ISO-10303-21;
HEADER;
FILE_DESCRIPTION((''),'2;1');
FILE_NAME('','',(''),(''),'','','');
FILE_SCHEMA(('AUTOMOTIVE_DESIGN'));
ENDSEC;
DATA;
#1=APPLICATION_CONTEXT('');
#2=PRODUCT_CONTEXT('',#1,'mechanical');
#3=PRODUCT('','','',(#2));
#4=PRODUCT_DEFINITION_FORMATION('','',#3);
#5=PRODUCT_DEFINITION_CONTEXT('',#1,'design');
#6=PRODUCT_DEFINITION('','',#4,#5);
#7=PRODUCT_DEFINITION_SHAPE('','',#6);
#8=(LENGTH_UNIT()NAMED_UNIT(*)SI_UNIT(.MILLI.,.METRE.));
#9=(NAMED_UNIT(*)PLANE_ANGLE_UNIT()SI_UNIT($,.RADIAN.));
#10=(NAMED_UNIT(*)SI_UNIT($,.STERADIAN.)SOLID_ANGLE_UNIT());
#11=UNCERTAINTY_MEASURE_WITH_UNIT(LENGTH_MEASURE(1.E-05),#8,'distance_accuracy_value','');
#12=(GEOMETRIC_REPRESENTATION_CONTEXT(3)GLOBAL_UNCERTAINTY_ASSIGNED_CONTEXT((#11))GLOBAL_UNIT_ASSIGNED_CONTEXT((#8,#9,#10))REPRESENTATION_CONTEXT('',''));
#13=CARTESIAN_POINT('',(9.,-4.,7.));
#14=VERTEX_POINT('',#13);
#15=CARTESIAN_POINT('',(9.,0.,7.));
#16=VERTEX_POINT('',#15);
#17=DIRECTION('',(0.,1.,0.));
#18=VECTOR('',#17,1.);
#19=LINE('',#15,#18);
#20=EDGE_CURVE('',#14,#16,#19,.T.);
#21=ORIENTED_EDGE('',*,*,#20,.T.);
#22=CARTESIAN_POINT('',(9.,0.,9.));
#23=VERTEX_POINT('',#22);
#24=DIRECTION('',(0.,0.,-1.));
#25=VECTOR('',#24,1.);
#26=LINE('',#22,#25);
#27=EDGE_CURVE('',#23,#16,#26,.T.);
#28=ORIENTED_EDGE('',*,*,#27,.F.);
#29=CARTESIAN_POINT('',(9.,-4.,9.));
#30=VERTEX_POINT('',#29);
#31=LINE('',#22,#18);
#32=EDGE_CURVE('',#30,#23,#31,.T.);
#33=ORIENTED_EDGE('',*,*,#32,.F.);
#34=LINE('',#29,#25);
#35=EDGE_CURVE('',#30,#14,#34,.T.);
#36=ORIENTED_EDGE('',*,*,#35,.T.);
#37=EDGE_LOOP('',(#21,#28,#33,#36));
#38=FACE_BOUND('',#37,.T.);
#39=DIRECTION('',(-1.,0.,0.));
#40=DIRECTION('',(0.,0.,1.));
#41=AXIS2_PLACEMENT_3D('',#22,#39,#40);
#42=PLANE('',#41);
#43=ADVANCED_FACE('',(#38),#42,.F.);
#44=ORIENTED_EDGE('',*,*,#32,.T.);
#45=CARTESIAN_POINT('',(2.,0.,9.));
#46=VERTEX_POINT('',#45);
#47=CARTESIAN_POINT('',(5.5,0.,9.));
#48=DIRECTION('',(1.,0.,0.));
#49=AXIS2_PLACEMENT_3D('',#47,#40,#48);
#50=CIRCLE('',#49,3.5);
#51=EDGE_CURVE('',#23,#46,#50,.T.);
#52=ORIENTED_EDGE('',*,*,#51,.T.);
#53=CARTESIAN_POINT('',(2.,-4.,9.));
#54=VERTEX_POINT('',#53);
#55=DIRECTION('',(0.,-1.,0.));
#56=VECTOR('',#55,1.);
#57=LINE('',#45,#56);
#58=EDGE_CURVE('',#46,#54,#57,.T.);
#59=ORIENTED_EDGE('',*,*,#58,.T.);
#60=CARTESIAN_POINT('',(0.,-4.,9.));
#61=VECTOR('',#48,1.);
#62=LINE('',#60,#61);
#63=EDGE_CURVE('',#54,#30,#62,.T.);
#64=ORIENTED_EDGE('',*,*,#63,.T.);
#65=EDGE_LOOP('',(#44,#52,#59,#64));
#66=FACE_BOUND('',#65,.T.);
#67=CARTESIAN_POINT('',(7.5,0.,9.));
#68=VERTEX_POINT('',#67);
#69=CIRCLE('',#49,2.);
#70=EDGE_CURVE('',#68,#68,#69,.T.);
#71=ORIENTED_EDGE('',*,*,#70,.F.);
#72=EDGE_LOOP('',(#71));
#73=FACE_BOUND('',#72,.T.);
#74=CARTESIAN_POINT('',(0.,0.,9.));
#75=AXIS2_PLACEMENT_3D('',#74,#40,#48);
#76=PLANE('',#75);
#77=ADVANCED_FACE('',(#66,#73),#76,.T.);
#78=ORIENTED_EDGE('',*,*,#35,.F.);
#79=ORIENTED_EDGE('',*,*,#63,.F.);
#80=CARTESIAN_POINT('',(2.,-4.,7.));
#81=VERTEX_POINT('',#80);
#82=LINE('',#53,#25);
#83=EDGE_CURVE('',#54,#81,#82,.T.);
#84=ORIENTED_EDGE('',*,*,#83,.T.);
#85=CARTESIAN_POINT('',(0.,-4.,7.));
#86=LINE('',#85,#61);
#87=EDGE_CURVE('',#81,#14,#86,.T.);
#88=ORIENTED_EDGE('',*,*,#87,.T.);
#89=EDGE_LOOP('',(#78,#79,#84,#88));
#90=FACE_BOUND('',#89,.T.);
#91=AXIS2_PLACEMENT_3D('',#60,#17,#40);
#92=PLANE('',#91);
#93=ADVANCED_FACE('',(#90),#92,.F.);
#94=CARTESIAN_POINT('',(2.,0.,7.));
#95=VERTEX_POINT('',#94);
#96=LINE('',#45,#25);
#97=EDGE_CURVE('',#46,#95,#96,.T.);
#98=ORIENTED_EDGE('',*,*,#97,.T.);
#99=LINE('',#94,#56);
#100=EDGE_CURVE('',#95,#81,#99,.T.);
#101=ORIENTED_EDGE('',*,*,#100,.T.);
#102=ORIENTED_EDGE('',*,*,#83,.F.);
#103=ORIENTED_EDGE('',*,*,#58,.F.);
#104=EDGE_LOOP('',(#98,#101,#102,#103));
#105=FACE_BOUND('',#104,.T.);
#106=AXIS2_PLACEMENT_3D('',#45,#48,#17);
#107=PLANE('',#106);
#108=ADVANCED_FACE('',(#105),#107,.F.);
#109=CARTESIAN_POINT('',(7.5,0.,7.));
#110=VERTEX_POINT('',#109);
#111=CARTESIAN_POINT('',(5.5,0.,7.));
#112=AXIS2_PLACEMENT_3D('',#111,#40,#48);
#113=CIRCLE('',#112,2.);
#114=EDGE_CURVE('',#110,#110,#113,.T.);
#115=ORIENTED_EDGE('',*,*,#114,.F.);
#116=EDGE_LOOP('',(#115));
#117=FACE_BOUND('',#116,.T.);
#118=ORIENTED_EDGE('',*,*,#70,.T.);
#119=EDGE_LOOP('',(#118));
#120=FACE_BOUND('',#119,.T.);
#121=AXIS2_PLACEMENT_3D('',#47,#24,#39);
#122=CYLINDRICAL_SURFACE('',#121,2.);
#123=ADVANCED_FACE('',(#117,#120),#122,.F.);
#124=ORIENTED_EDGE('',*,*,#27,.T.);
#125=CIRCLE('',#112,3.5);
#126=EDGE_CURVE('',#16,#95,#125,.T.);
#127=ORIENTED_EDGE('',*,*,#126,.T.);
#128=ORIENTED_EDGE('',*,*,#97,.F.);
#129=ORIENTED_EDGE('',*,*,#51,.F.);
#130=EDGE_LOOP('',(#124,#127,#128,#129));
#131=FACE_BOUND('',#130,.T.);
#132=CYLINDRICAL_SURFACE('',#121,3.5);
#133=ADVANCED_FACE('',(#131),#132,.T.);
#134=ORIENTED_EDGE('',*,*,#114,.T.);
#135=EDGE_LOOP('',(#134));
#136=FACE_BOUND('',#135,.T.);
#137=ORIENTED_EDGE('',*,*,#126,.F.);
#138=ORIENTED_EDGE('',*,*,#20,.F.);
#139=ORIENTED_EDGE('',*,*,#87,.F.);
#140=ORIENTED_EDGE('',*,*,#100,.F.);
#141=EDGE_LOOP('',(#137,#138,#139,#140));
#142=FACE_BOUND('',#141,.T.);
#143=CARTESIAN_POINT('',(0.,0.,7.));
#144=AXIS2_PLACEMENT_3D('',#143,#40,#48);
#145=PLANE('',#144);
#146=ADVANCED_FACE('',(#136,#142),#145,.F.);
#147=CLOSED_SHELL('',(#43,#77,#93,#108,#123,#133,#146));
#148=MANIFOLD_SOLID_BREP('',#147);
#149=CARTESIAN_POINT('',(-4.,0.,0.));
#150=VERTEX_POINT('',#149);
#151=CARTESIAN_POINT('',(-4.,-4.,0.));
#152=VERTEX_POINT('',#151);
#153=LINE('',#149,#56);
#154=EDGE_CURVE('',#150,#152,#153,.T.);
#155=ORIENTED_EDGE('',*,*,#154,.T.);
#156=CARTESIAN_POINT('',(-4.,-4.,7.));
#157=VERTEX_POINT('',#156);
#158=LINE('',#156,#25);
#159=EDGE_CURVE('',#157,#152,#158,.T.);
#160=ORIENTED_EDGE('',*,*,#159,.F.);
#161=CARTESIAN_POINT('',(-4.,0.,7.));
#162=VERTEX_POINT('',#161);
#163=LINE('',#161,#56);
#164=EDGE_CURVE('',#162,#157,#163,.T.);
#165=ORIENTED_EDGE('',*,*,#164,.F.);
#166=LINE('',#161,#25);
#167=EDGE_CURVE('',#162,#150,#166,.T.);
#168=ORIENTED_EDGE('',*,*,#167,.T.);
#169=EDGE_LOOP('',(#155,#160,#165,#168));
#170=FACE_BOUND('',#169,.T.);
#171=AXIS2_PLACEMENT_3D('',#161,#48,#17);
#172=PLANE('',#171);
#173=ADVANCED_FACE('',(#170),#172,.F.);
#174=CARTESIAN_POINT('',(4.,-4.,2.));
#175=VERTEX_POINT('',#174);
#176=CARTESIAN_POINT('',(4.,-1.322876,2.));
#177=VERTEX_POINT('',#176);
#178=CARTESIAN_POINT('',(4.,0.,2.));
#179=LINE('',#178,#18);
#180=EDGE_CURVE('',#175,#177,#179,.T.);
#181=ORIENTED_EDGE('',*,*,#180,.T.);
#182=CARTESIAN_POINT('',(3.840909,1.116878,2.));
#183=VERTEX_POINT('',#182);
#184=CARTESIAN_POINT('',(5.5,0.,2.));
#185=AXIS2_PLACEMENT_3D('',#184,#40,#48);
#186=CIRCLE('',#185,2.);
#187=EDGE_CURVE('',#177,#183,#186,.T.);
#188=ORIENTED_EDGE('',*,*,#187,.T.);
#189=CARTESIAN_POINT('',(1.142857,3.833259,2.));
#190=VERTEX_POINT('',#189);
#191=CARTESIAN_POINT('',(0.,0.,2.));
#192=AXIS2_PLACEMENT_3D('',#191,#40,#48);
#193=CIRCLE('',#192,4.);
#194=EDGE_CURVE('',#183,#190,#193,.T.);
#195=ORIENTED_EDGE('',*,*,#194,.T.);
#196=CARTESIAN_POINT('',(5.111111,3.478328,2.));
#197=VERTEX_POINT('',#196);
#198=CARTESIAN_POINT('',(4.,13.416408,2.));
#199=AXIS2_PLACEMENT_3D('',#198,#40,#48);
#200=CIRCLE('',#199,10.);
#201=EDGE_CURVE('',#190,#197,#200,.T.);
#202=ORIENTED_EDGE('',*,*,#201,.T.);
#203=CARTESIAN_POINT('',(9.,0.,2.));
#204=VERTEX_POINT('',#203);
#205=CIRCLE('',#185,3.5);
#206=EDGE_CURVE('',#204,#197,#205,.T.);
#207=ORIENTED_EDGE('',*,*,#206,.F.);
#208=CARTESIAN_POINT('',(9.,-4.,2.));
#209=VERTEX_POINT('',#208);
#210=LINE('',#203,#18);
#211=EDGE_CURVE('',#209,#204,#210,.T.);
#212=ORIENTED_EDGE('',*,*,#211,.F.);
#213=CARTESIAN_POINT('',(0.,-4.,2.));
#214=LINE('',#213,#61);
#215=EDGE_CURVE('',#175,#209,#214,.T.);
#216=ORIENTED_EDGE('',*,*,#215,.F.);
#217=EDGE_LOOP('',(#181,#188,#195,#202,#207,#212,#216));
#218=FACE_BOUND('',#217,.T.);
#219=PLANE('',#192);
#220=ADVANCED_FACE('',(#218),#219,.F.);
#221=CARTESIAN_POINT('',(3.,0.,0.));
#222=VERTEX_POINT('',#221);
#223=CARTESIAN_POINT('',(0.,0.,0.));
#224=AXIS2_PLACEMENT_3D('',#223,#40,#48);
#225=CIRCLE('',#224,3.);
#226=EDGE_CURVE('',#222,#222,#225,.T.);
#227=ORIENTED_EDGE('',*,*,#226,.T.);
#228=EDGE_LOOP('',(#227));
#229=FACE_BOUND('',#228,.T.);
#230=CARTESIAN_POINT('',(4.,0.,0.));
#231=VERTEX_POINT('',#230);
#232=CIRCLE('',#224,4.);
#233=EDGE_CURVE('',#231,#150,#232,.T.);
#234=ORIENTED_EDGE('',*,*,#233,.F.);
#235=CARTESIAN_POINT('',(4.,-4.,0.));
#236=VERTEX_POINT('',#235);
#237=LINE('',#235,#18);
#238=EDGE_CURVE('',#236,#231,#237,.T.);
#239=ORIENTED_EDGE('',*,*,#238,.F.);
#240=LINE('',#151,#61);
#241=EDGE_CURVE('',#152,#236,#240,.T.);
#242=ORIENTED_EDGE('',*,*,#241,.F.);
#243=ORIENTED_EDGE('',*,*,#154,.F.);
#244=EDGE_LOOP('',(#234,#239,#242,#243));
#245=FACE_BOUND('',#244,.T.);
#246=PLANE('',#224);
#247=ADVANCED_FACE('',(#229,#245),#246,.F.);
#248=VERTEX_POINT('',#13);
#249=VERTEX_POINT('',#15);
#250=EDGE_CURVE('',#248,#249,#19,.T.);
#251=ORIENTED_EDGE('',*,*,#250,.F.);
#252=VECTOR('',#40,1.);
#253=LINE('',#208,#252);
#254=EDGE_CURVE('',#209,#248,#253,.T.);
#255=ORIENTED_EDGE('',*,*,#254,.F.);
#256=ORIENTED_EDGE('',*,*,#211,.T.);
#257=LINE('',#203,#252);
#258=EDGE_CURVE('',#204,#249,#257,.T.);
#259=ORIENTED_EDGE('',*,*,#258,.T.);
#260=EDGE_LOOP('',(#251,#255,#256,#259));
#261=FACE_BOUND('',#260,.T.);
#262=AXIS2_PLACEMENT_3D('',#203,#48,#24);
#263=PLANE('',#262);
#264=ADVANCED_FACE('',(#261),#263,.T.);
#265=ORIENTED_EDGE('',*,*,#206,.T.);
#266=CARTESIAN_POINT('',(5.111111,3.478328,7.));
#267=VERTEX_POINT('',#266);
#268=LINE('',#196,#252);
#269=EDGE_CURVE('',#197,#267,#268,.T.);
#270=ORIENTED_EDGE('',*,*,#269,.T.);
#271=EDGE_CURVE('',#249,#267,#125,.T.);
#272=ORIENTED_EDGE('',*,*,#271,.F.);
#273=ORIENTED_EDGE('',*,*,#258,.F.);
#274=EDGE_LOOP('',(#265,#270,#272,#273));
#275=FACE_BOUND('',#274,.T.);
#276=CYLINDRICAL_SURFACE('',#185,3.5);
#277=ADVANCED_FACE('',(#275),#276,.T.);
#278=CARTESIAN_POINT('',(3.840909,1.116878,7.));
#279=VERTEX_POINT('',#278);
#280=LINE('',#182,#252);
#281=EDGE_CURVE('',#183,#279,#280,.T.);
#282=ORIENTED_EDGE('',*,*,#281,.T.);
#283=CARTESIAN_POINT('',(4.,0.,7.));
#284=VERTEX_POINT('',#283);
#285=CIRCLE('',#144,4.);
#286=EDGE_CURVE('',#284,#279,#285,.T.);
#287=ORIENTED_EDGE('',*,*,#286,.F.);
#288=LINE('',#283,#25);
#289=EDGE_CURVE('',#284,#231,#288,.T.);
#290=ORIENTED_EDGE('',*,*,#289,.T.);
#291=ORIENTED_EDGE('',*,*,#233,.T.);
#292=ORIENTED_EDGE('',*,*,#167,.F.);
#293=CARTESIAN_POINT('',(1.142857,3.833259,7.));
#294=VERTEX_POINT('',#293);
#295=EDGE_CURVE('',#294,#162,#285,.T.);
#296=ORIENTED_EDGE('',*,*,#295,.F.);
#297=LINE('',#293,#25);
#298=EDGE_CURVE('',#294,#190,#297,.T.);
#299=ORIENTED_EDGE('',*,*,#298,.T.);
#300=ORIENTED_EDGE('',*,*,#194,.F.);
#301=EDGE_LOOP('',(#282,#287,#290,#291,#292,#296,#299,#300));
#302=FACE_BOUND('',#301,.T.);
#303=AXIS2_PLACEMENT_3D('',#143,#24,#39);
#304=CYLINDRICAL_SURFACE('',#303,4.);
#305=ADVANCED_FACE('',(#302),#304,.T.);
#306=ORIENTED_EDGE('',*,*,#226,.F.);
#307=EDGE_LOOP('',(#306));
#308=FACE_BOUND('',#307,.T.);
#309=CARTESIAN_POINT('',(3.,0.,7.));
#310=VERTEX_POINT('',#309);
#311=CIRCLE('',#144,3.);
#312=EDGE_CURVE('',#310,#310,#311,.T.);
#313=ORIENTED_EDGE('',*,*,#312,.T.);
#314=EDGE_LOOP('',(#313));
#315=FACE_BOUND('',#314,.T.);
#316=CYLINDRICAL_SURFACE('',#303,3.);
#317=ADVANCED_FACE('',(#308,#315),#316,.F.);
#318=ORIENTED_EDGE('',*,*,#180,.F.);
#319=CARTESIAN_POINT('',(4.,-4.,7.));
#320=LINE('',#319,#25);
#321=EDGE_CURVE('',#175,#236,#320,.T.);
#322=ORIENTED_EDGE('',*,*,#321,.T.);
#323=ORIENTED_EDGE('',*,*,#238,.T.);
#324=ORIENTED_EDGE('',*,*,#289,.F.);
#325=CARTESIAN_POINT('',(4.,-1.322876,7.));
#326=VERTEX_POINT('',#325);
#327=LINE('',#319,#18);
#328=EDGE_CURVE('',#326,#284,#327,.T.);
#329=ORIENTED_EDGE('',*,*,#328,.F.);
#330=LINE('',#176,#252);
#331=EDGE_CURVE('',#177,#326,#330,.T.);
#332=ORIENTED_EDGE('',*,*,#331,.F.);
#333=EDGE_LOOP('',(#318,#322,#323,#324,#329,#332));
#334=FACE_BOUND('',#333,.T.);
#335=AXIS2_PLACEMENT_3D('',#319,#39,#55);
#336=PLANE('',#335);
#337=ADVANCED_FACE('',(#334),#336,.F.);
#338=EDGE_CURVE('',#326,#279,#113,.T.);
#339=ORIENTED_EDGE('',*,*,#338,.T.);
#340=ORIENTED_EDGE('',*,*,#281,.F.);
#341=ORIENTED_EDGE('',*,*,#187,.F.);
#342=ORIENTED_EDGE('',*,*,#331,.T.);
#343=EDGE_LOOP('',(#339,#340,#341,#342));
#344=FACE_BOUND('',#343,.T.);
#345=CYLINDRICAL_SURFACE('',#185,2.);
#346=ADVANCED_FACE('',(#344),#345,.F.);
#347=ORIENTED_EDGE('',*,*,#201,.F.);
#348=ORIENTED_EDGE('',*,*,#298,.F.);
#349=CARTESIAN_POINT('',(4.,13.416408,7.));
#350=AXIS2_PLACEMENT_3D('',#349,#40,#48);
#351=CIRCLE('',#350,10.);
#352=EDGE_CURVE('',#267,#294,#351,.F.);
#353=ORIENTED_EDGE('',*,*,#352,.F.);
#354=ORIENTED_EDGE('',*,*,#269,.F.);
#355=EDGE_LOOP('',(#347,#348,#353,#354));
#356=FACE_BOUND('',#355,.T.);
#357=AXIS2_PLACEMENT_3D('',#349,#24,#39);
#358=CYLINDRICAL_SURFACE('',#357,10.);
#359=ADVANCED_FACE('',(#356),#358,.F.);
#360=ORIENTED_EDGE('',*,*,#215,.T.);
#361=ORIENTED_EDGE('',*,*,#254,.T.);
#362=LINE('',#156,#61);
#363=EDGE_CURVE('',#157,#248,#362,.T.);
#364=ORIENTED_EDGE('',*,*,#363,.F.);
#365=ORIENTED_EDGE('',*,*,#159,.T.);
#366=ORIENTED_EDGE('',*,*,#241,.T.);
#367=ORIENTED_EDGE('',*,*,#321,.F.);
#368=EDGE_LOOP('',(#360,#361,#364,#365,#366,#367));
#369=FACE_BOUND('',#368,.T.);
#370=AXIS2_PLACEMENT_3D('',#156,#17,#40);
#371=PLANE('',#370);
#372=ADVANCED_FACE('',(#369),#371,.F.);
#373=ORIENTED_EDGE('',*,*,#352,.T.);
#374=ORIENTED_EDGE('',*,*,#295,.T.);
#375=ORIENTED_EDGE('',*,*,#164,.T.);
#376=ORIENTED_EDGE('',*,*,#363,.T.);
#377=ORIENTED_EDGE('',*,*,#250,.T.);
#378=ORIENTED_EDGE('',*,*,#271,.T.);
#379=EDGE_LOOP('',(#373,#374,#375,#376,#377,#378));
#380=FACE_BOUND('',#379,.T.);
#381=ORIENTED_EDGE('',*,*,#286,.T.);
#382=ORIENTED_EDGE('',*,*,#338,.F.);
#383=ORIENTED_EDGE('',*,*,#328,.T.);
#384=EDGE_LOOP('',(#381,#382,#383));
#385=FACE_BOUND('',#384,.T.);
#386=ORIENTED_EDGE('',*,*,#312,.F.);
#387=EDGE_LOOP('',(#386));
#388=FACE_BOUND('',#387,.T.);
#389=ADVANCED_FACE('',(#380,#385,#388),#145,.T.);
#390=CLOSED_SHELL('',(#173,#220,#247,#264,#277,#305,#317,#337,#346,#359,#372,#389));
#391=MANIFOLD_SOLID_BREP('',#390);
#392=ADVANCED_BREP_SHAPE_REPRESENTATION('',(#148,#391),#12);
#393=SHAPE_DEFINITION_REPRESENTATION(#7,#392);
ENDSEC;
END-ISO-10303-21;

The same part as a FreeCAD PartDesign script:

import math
import FreeCAD as App
import Part
import Sketcher
from FreeCAD import Vector


def edges_at(feature, points):
    """Names of the edges that pass closest to the given points."""
    edges = feature.Shape.Edges
    near = lambda p: min(range(len(edges)), key=lambda i: edges[i].distToShape(Part.Vertex(*p))[0])
    return sorted({f"Edge{near(p) + 1}" for p in points})

doc = App.newDocument("Part")
body = doc.addObject("PartDesign::Body", "Body")

# Sketch on XY plane
sketch1 = body.newObject("Sketcher::SketchObject", "Sketch")
sketch1.AttachmentSupport = (doc.getObject("XY_Plane"), [""])
sketch1.MapMode = "FlatFace"
sketch1.addGeometry(Part.LineSegment(Vector(-4, 0, 0), Vector(-4, -4, 0)), False)
sketch1.addGeometry(Part.LineSegment(Vector(-4, -4, 0), Vector(4, -4, 0)), False)
sketch1.addGeometry(Part.LineSegment(Vector(4, -4, 0), Vector(4, 0, 0)), False)
sketch1.addGeometry(Part.ArcOfCircle(Part.Circle(Vector(0, 0, 0), Vector(0, 0, 1), 4), math.radians(0), math.radians(180)), False)
sketch1.addGeometry(Part.Circle(Vector(0, 0, 0), Vector(0, 0, 1), 3), False)
sketch1.addConstraint(Sketcher.Constraint("Coincident", 0, 2, 1, 1))
sketch1.addConstraint(Sketcher.Constraint("Coincident", 1, 2, 2, 1))
sketch1.addConstraint(Sketcher.Constraint("Tangent", 2, 2, 3, 1))
sketch1.addConstraint(Sketcher.Constraint("Tangent", 3, 2, 0, 1))
sketch1.addConstraint(Sketcher.Constraint("Vertical", 0))
sketch1.addConstraint(Sketcher.Constraint("Horizontal", 1))
sketch1.addConstraint(Sketcher.Constraint("Vertical", 2))
sketch1.addConstraint(Sketcher.Constraint("Coincident", 3, 3, -1, 1))
sketch1.addConstraint(Sketcher.Constraint("Coincident", 4, 3, -1, 1))
sketch1.addConstraint(Sketcher.Constraint("Diameter", 4, 6.0))
sketch1.addConstraint(Sketcher.Constraint("Radius", 3, 4.0))
sketch1.addConstraint(Sketcher.Constraint("DistanceY", 0, 2, 0, 1, 4.0))
pad1 = body.newObject("PartDesign::Pad", "Pad")
pad1.Profile = sketch1
pad1.Length = 7

# Sketch on XY plane
sketch2 = body.newObject("Sketcher::SketchObject", "Sketch001")
sketch2.AttachmentSupport = (doc.getObject("XY_Plane"), [""])
sketch2.MapMode = "FlatFace"
sketch2.AttachmentOffset = App.Placement(Vector(0, 0, 2), App.Rotation())
sketch2.addGeometry(Part.ArcOfCircle(Part.Circle(Vector(5.5, 0, 0), Vector(0, 0, 1), 3.5), math.radians(0), math.radians(133.496613)), False)
sketch2.addGeometry(Part.ArcOfCircle(Part.Circle(Vector(0, 0, 0), Vector(0, 0, 1), 4), math.radians(16.213633), math.radians(39.400569)), False)
sketch2.addGeometry(Part.ArcOfCircle(Part.Circle(Vector(5.5, 0, 0), Vector(0, 0, 1), 2), math.radians(0), math.radians(146.052073)), False)
sketch2.addGeometry(Part.ArcOfCircle(Part.Circle(Vector(5.5, 0, 0), Vector(0, 0, 1), 2), math.radians(-138.590378), math.radians(0)), False)
sketch2.addGeometry(Part.LineSegment(Vector(4, -1.322876, 0), Vector(4, -4, 0)), False)
sketch2.addGeometry(Part.LineSegment(Vector(4, -4, 0), Vector(9, -4, 0)), False)
sketch2.addGeometry(Part.LineSegment(Vector(9, -4, 0), Vector(9, 0, 0)), False)
sketch2.addConstraint(Sketcher.Constraint("Coincident", 0, 2, 1, 2))
sketch2.addConstraint(Sketcher.Constraint("Coincident", 1, 1, 2, 2))
sketch2.addConstraint(Sketcher.Constraint("Tangent", 2, 1, 3, 2))
sketch2.addConstraint(Sketcher.Constraint("Coincident", 3, 1, 4, 1))
sketch2.addConstraint(Sketcher.Constraint("Coincident", 4, 2, 5, 1))
sketch2.addConstraint(Sketcher.Constraint("Coincident", 5, 2, 6, 1))
sketch2.addConstraint(Sketcher.Constraint("Tangent", 6, 2, 0, 1))
sketch2.addConstraint(Sketcher.Constraint("Vertical", 4))
sketch2.addConstraint(Sketcher.Constraint("Horizontal", 5))
sketch2.addConstraint(Sketcher.Constraint("Vertical", 6))
sketch2.addConstraint(Sketcher.Constraint("Coincident", 1, 3, -1, 1))
sketch2.addConstraint(Sketcher.Constraint("Coincident", 2, 3, 0, 3))
sketch2.addConstraint(Sketcher.Constraint("Equal", 2, 3))
sketch2.addConstraint(Sketcher.Constraint("PointOnObject", 0, 3, -1))
sketch2.addConstraint(Sketcher.Constraint("PointOnObject", 2, 1, -1))
sketch2.addConstraint(Sketcher.Constraint("Radius", 1, 4.0))
sketch2.addConstraint(Sketcher.Constraint("Radius", 2, 2.0))
sketch2.addConstraint(Sketcher.Constraint("Radius", 0, 3.5))
sketch2.addConstraint(Sketcher.Constraint("DistanceX", 5, 1, 5, 2, 5.0))
sketch2.addConstraint(Sketcher.Constraint("DistanceY", 6, 1, 6, 2, 4.0))
sketch2.addConstraint(Sketcher.Constraint("DistanceX", -1, 1, 3, 1, 4.0))
pad2 = body.newObject("PartDesign::Pad", "Pad001")
pad2.Profile = sketch2
pad2.Length = 5
doc.recompute()

fillet = body.newObject("PartDesign::Fillet", "Fillet")
fillet.Base = (pad2, edges_at(pad2, [(3.091, 2.539, 4.5)]))
fillet.Radius = 10
body2 = doc.addObject("PartDesign::Body", "Body001")

# Sketch on XY plane
sketch3 = body2.newObject("Sketcher::SketchObject", "Sketch002")
sketch3.AttachmentSupport = (doc.getObject("XY_Plane001"), [""])
sketch3.MapMode = "FlatFace"
sketch3.AttachmentOffset = App.Placement(Vector(0, 0, 7), App.Rotation())
sketch3.addGeometry(Part.LineSegment(Vector(2, 0, 0), Vector(2, -4, 0)), False)
sketch3.addGeometry(Part.LineSegment(Vector(2, -4, 0), Vector(9, -4, 0)), False)
sketch3.addGeometry(Part.LineSegment(Vector(9, -4, 0), Vector(9, 0, 0)), False)
sketch3.addGeometry(Part.ArcOfCircle(Part.Circle(Vector(5.5, 0, 0), Vector(0, 0, 1), 3.5), math.radians(0), math.radians(180)), False)
sketch3.addGeometry(Part.Circle(Vector(5.5, 0, 0), Vector(0, 0, 1), 2), False)
sketch3.addConstraint(Sketcher.Constraint("Coincident", 0, 2, 1, 1))
sketch3.addConstraint(Sketcher.Constraint("Coincident", 1, 2, 2, 1))
sketch3.addConstraint(Sketcher.Constraint("Tangent", 2, 2, 3, 1))
sketch3.addConstraint(Sketcher.Constraint("Tangent", 3, 2, 0, 1))
sketch3.addConstraint(Sketcher.Constraint("Vertical", 0))
sketch3.addConstraint(Sketcher.Constraint("Horizontal", 1))
sketch3.addConstraint(Sketcher.Constraint("Vertical", 2))
sketch3.addConstraint(Sketcher.Constraint("Coincident", 4, 3, 3, 3))
sketch3.addConstraint(Sketcher.Constraint("PointOnObject", 3, 3, -1))
sketch3.addConstraint(Sketcher.Constraint("Diameter", 4, 4.0))
sketch3.addConstraint(Sketcher.Constraint("Radius", 3, 3.5))
sketch3.addConstraint(Sketcher.Constraint("DistanceY", 0, 2, 0, 1, 4.0))
sketch3.addConstraint(Sketcher.Constraint("DistanceX", -1, 1, 0, 2, 2.0))
pad3 = body2.newObject("PartDesign::Pad", "Pad002")
pad3.Profile = sketch3
pad3.Length = 2

doc.recompute()
